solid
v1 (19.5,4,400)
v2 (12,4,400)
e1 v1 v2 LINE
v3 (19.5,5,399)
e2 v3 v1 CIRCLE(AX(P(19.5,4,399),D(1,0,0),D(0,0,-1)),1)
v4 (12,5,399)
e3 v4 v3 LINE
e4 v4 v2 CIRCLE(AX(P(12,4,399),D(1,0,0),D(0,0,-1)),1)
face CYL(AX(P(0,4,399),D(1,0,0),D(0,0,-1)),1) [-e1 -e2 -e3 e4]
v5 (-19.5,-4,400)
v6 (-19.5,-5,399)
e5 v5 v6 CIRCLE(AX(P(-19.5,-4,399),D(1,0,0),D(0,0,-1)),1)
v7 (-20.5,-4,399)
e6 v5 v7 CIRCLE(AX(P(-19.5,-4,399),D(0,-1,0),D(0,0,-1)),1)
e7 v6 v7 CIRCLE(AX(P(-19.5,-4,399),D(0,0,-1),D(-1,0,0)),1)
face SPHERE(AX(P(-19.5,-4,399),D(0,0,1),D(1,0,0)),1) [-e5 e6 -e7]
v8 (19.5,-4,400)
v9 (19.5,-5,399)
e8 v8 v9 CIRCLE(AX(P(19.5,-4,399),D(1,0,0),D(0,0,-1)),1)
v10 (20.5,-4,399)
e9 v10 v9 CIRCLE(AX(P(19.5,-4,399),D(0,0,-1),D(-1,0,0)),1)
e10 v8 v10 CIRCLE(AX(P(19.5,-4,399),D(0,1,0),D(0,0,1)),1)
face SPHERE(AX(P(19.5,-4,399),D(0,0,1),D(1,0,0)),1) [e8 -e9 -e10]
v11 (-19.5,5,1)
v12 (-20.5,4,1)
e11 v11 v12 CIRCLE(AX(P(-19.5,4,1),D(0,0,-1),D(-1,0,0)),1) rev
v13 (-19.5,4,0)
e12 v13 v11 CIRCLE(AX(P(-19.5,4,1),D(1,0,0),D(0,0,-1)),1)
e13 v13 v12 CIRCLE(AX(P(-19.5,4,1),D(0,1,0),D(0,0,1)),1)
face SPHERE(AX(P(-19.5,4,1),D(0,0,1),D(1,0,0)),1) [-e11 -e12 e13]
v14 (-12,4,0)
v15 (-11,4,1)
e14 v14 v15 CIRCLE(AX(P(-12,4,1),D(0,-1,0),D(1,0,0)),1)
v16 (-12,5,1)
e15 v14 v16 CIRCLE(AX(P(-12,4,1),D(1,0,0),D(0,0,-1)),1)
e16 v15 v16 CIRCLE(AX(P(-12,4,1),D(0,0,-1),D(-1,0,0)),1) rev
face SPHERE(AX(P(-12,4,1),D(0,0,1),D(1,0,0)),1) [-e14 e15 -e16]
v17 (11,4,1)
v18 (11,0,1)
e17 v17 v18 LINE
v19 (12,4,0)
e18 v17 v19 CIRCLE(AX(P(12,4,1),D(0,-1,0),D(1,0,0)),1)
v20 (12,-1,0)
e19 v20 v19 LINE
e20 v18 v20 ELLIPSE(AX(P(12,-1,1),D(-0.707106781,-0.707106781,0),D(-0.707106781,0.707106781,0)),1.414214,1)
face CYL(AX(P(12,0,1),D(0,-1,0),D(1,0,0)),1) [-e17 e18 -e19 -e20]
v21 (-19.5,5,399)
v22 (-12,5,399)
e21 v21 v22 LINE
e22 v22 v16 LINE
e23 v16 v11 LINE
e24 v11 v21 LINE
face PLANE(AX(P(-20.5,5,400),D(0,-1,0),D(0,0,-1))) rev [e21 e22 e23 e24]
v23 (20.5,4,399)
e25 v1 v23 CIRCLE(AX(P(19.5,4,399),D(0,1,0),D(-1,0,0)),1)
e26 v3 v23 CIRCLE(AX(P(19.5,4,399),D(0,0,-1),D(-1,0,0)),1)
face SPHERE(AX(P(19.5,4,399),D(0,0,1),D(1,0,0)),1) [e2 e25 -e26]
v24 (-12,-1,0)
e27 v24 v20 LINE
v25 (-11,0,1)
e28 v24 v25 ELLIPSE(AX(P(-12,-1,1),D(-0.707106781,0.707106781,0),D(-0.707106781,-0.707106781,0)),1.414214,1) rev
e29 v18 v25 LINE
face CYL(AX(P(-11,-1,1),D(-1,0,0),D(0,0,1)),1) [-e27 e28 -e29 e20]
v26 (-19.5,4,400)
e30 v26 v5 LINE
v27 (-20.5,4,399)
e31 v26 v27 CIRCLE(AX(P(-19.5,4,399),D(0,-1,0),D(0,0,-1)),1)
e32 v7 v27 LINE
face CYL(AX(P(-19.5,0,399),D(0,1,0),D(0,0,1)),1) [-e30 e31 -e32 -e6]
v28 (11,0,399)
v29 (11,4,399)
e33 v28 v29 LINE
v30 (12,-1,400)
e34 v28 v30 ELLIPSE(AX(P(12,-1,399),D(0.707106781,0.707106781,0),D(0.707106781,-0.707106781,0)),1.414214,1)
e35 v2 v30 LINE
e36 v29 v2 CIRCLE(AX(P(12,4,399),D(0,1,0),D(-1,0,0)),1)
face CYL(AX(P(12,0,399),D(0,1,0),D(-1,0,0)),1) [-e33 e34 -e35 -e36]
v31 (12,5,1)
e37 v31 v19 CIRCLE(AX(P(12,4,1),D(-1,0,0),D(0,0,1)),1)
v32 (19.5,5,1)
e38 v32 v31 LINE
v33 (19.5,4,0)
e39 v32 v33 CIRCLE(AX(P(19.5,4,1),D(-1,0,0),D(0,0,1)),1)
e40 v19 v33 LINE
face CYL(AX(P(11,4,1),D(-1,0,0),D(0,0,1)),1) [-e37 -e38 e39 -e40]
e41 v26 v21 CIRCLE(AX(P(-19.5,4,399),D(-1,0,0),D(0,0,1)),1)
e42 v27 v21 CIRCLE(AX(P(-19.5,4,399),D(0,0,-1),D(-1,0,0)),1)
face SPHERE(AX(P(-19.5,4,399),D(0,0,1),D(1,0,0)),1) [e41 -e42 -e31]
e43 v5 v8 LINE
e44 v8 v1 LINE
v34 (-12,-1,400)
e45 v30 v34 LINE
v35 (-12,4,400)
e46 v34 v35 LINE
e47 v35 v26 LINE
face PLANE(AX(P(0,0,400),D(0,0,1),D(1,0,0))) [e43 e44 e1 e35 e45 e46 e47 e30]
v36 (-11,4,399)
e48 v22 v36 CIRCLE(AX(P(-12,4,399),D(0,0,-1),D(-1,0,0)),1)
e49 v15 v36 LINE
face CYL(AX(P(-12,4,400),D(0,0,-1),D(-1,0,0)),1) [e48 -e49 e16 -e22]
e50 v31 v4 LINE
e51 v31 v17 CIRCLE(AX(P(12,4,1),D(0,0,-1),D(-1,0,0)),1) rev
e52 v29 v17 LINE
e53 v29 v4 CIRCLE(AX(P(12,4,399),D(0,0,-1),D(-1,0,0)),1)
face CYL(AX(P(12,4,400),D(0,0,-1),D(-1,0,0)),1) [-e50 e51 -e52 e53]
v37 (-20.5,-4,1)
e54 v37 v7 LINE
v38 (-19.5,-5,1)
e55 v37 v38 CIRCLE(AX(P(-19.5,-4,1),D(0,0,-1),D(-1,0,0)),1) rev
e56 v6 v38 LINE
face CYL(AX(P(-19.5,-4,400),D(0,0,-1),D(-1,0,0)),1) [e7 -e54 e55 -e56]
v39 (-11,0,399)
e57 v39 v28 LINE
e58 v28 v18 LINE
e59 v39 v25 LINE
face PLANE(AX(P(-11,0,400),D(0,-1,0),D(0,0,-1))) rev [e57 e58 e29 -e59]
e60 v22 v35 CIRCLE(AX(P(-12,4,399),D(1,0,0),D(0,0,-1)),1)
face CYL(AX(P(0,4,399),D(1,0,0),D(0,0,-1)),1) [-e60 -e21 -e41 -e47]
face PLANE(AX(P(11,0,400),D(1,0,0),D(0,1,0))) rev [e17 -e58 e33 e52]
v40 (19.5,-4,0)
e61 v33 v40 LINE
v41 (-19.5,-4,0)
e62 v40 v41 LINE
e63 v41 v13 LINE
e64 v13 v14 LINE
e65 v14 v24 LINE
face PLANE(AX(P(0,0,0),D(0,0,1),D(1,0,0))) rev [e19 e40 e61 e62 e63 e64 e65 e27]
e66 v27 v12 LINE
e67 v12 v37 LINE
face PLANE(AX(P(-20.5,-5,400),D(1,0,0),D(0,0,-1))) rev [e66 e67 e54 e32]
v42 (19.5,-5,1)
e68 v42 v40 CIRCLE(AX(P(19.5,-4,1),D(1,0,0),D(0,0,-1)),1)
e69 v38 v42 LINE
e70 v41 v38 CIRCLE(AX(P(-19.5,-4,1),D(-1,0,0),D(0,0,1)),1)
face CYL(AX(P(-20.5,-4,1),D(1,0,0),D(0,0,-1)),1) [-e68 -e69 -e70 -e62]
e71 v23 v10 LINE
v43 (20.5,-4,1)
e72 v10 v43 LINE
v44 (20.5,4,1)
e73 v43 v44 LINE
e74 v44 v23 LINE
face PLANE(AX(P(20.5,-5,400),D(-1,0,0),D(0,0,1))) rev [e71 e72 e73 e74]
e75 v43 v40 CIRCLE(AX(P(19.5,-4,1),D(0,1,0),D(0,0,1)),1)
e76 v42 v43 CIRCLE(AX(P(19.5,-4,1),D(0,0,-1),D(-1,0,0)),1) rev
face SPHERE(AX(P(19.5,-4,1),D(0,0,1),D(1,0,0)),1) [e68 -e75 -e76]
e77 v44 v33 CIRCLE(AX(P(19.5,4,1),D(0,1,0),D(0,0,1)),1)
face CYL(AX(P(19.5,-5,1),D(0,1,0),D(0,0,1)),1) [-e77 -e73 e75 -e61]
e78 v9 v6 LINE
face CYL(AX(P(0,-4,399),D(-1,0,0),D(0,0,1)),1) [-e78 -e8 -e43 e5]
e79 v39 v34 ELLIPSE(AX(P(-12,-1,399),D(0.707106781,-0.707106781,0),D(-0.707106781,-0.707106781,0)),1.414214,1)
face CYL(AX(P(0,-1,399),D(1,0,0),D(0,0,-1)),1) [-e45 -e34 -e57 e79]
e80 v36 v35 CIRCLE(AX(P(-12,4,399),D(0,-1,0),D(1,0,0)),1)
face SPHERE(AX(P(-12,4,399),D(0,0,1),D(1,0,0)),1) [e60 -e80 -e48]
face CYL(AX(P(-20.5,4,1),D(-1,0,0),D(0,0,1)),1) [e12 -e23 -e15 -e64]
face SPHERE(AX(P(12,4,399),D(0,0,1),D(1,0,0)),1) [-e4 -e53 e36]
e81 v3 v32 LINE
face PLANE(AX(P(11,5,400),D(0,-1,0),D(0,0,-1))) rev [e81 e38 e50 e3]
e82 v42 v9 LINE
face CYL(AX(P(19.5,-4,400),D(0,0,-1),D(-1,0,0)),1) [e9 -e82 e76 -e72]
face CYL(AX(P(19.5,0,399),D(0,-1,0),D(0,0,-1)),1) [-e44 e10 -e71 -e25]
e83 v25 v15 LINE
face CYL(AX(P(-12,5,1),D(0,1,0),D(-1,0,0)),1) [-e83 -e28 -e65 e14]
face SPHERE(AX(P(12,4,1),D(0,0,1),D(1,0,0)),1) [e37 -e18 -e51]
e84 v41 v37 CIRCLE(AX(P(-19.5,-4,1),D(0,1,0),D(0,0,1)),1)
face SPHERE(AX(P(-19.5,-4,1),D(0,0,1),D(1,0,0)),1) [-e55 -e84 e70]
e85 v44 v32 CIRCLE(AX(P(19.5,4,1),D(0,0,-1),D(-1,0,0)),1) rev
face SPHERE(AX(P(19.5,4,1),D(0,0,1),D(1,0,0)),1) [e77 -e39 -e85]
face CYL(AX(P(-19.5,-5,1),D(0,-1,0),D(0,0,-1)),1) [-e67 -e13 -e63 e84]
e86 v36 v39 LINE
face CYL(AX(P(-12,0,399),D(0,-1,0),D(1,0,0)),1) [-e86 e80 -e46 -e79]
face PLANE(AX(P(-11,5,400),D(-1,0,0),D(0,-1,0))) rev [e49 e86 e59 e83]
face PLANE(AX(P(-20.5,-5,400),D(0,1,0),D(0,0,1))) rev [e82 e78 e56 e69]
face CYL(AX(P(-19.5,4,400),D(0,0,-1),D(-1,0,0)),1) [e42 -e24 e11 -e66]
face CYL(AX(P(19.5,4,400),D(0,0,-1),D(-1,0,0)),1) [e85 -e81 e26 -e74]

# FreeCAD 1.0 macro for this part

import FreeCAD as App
import Part
import Sketcher

V = App.Vector


def edges_at(feature, points):
    """Names of the edges that pass closest to the given points."""
    edges = feature.Shape.Edges
    near = lambda p: min(range(len(edges)), key=lambda i: edges[i].distToShape(Part.Vertex(*p))[0])
    return sorted({f"Edge{near(p) + 1}" for p in points})


def add_polygon(sketch, points):
    """Adds a closed chain of lines whose ends are joined by coincident constraints."""
    first, n = sketch.GeometryCount, len(points)
    for a, b in zip(points, points[1:] + points[:1]):
        sketch.addGeometry(Part.LineSegment(App.Vector(*a, 0), App.Vector(*b, 0)), False)
    for i in range(n):
        sketch.addConstraint(Sketcher.Constraint("Coincident", first + i, 2, first + (i + 1) % n, 1))

doc = App.newDocument("Part")
body = doc.addObject("PartDesign::Body", "Body")

# Sketch on XY plane
sketch1 = body.newObject("Sketcher::SketchObject", "Sketch")
sketch1.AttachmentSupport = (doc.getObject("XY_Plane"), [""])
sketch1.MapMode = "FlatFace"
add_polygon(sketch1, [(-11, 0), (-11, 5), (-20, 5), (-20, -5), (20, -5), (20, 5), (11, 5), (11, 0)])  # lines 0-7
sketch1.addConstraint(Sketcher.Constraint("Vertical", 0))
sketch1.addConstraint(Sketcher.Constraint("Horizontal", 1))
sketch1.addConstraint(Sketcher.Constraint("Vertical", 2))
sketch1.addConstraint(Sketcher.Constraint("Horizontal", 3))
sketch1.addConstraint(Sketcher.Constraint("Vertical", 4))
sketch1.addConstraint(Sketcher.Constraint("Horizontal", 5))
sketch1.addConstraint(Sketcher.Constraint("Vertical", 6))
sketch1.addConstraint(Sketcher.Constraint("Horizontal", 7))
sketch1.addConstraint(Sketcher.Constraint("Symmetric", 1, 2, 3, 2, -1, 1))
sketch1.addConstraint(Sketcher.Constraint("Symmetric", 6, 2, 7, 2, -1, 1))
sketch1.addConstraint(Sketcher.Constraint("Horizontal", 1, 2, 4, 2))
sketch1.addConstraint(Sketcher.Constraint("DistanceX", 3, 1, 3, 2, 41.0))
sketch1.addConstraint(Sketcher.Constraint("DistanceX", 7, 2, 7, 1, 22.0))
sketch1.addConstraint(Sketcher.Constraint("DistanceY", 0, 1, 0, 2, 5.0))
pad1 = body.newObject("PartDesign::Pad", "Pad")
pad1.Profile = sketch1
pad1.Length = 400
doc.recompute()

fillet = body.newObject("PartDesign::Fillet", "Fillet")
fillet.Base = (pad1, edges_at(pad1, [
    (20.5, 5, 200),
    (20.5, -5, 200),
    (-20.5, -5, 200),
    (-20.5, 5, 200),
    (-11, 5, 200),
    (11, 5, 200),
]))
fillet.Radius = 1
doc.recompute()

fillet2 = body.newObject("PartDesign::Fillet", "Fillet001")
fillet2.Base = (fillet, edges_at(fillet, [
    (0, 0, 400),
    (-11, 2, 400),
    (11, 2, 0),
    (11, 2, 400),
    (15.75, 5, 0),
    (20.5, 0, 0),
    (0, -5, 0),
    (-20.5, 0, 0),
    (-15.75, 5, 0),
    (20.207, 4.707, 0),
    (-20.207, 4.707, 0),
    (-20.207, -4.707, 0),
    (20.207, -4.707, 0),
    (-11.293, 4.707, 0),
    (11.293, 4.707, 0),
    (15.75, 5, 400),
    (-15.75, 5, 400),
    (-20.5, 0, 400),
    (0, -5, 400),
    (20.5, 0, 400),
    (20.207, 4.707, 400),
    (-20.207, 4.707, 400),
    (-20.207, -4.707, 400),
    (20.207, -4.707, 400),
    (-11.293, 4.707, 400),
    (11.293, 4.707, 400),
    (-11, 2, 0),
    (0, 0, 0),
]))
fillet2.Radius = 1

doc.recompute()
